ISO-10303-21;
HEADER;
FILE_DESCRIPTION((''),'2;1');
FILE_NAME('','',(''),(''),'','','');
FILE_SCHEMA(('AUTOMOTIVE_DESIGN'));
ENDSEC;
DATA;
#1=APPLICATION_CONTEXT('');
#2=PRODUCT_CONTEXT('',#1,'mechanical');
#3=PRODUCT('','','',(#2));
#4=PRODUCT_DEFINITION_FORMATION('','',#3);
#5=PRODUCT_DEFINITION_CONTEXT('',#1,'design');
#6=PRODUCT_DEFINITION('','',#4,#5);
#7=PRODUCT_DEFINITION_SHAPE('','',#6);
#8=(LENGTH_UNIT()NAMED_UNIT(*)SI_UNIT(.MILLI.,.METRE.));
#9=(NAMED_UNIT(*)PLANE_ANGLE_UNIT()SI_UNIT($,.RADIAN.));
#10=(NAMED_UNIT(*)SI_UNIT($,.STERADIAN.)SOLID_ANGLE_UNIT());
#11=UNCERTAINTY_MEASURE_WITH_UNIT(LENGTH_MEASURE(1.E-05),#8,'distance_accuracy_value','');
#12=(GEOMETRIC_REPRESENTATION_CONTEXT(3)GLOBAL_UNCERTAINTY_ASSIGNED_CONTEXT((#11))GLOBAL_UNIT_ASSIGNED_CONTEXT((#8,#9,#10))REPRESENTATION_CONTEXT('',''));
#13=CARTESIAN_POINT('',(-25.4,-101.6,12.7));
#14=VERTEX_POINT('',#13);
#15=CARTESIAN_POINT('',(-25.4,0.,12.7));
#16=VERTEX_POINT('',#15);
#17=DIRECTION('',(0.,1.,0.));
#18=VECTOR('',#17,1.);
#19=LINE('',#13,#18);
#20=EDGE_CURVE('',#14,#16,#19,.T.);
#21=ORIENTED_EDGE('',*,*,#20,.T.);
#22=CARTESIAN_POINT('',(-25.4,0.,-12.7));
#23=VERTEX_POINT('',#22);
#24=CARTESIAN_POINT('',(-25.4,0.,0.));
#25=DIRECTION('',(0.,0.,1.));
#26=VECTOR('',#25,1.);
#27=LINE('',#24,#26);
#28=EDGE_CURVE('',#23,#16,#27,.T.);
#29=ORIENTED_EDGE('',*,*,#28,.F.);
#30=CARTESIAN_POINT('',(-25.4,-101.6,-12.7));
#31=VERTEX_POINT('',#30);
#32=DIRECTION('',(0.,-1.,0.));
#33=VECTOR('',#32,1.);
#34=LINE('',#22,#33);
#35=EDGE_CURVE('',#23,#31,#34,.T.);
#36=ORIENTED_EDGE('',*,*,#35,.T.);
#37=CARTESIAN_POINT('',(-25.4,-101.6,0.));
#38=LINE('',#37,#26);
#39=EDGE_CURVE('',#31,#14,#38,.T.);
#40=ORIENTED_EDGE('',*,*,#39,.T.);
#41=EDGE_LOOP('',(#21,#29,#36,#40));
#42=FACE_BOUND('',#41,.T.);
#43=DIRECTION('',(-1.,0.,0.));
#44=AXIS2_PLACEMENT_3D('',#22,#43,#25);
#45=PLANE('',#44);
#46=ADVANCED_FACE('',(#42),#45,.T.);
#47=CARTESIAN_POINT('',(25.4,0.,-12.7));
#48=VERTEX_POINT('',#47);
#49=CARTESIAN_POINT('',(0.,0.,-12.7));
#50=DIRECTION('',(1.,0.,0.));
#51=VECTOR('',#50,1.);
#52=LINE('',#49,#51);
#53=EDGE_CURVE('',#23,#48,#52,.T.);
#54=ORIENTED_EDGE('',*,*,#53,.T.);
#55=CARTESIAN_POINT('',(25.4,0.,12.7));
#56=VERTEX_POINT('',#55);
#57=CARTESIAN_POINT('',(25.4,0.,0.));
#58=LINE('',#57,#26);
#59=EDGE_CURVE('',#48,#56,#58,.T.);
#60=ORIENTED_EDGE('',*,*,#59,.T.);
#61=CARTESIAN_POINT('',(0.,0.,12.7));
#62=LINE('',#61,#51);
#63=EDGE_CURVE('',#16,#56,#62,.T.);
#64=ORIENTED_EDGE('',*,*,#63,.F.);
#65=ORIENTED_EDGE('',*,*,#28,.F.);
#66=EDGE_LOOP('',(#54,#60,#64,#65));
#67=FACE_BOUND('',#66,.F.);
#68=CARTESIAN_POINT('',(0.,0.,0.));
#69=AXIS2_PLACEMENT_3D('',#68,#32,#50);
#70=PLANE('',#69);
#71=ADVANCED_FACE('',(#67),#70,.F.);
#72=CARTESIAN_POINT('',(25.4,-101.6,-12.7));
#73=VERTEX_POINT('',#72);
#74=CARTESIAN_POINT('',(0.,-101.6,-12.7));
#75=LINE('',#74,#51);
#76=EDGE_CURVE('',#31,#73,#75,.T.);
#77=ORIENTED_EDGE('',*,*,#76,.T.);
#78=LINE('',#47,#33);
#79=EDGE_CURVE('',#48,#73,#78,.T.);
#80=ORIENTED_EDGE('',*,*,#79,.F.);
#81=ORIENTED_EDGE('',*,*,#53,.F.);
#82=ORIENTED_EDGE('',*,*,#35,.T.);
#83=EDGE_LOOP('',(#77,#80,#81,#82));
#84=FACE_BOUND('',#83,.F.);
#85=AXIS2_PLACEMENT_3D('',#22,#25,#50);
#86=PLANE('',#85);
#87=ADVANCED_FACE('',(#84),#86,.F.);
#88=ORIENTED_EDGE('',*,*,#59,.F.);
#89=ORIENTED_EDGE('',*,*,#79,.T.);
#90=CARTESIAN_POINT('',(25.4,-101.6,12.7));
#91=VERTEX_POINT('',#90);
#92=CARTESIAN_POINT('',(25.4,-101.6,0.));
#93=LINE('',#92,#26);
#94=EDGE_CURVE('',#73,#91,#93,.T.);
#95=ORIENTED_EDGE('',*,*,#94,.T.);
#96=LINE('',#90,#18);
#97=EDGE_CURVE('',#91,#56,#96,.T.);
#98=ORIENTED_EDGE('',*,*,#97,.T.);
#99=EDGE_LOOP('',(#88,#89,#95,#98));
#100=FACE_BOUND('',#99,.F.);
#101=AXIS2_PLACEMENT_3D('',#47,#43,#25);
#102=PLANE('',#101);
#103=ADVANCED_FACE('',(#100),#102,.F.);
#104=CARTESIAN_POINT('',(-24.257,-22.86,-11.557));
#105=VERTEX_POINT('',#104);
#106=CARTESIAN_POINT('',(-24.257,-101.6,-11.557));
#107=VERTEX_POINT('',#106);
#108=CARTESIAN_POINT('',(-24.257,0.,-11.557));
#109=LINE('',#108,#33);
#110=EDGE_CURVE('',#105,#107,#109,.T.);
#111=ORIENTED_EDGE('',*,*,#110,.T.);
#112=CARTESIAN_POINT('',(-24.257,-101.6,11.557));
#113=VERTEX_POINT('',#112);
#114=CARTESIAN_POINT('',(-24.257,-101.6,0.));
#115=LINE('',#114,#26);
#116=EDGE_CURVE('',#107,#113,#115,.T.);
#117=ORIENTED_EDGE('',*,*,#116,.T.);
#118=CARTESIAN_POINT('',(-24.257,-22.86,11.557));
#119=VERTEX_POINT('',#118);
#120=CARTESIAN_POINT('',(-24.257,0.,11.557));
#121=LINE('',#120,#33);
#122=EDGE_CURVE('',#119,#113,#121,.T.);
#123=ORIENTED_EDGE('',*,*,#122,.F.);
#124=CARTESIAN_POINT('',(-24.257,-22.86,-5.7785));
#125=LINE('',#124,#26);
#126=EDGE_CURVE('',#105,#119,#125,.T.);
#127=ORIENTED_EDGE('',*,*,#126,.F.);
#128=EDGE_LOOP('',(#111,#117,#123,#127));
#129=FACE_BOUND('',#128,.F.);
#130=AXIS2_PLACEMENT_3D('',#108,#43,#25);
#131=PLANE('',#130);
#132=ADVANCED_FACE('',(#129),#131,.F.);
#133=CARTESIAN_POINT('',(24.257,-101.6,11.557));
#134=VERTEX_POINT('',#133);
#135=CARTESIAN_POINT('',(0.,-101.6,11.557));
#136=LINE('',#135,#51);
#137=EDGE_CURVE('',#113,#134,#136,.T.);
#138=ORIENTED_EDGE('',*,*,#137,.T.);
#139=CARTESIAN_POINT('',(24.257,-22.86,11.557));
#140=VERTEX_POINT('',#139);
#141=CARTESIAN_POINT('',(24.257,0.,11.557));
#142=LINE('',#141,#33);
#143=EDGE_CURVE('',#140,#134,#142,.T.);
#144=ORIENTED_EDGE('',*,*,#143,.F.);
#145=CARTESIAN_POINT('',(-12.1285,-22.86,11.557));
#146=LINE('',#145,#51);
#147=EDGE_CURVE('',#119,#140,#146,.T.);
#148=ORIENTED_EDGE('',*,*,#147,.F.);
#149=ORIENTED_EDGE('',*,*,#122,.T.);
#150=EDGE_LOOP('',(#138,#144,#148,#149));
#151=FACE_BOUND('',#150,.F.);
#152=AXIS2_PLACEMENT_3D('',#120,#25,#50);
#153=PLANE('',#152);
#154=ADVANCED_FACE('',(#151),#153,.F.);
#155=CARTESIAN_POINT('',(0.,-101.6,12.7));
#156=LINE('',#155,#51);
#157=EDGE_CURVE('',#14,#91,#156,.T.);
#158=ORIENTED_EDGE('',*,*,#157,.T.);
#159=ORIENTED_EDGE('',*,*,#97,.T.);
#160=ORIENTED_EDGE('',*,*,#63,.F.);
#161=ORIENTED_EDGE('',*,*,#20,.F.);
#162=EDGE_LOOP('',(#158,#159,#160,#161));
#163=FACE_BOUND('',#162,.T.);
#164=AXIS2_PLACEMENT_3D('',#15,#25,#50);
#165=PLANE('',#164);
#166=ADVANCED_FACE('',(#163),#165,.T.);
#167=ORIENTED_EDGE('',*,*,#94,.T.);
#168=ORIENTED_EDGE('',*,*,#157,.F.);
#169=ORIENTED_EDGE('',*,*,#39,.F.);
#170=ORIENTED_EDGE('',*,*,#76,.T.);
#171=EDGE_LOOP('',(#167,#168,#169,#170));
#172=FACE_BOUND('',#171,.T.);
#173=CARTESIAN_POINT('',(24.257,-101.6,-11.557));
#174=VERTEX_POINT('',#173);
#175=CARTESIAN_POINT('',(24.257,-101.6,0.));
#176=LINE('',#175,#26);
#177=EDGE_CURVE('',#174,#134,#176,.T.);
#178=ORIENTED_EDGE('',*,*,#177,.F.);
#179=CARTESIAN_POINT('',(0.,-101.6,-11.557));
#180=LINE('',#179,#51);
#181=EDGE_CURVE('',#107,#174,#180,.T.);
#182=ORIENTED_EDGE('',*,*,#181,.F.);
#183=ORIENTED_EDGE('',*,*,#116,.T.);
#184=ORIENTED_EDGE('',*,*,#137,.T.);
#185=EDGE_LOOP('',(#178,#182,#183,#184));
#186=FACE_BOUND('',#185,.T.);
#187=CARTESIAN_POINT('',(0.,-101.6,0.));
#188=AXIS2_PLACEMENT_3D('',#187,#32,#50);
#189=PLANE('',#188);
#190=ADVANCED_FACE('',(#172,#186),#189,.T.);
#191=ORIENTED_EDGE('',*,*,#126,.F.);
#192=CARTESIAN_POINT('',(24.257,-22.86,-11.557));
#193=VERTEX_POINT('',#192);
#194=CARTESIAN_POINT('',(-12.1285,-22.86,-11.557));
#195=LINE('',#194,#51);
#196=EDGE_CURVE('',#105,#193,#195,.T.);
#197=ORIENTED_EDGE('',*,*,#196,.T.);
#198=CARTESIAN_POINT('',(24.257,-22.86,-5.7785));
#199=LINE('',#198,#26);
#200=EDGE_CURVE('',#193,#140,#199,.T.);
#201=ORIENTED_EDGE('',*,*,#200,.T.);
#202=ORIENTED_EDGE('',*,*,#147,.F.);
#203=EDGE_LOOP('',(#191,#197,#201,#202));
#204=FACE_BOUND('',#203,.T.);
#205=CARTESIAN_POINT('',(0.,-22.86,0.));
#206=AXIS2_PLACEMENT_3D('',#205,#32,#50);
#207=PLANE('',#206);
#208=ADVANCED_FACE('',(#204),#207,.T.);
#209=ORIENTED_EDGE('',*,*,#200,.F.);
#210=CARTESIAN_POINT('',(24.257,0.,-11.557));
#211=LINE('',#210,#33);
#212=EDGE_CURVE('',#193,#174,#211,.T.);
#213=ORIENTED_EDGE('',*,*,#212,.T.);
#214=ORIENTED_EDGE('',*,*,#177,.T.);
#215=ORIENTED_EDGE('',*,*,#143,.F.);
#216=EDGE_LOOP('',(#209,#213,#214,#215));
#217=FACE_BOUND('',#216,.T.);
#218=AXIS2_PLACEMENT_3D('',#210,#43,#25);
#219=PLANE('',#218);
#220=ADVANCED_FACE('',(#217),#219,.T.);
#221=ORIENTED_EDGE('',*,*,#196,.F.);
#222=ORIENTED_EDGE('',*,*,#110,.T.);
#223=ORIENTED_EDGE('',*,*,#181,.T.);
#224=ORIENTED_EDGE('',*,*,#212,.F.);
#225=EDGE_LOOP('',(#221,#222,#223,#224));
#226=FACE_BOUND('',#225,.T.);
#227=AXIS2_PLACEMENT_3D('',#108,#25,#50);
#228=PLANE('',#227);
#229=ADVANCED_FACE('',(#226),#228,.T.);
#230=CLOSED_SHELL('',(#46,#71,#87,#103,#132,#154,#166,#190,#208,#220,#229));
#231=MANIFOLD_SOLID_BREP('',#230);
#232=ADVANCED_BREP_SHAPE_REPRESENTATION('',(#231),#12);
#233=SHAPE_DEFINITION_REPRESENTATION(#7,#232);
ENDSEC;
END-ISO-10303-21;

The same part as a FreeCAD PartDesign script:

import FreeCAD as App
import Part
import Sketcher
from FreeCAD import Vector
Q = App.Units.Quantity

doc = App.newDocument("Part")
body = doc.addObject("PartDesign::Body", "Body")

# Sketch on XZ plane
sketch1 = body.newObject("Sketcher::SketchObject", "Sketch")
sketch1.AttachmentSupport = (doc.getObject("XZ_Plane"), [""])
sketch1.MapMode = "FlatFace"
sketch1.addGeometry(Part.LineSegment(Vector(-25.4, 12.7, 0), Vector(-25.4, -12.7, 0)), False)
sketch1.addGeometry(Part.LineSegment(Vector(-25.4, -12.7, 0), Vector(25.4, -12.7, 0)), False)
sketch1.addGeometry(Part.LineSegment(Vector(25.4, -12.7, 0), Vector(25.4, 12.7, 0)), False)
sketch1.addGeometry(Part.LineSegment(Vector(25.4, 12.7, 0), Vector(-25.4, 12.7, 0)), False)
sketch1.addGeometry(Part.LineSegment(Vector(24.257, -11.557, 0), Vector(-24.257, -11.557, 0)), False)
sketch1.addGeometry(Part.LineSegment(Vector(-24.257, -11.557, 0), Vector(-24.257, 11.557, 0)), False)
sketch1.addGeometry(Part.LineSegment(Vector(-24.257, 11.557, 0), Vector(24.257, 11.557, 0)), False)
sketch1.addGeometry(Part.LineSegment(Vector(24.257, 11.557, 0), Vector(24.257, -11.557, 0)), False)
sketch1.addConstraint(Sketcher.Constraint("Coincident", 0, 2, 1, 1))
sketch1.addConstraint(Sketcher.Constraint("Coincident", 1, 2, 2, 1))
sketch1.addConstraint(Sketcher.Constraint("Coincident", 2, 2, 3, 1))
sketch1.addConstraint(Sketcher.Constraint("Coincident", 3, 2, 0, 1))
sketch1.addConstraint(Sketcher.Constraint("Coincident", 4, 2, 5, 1))
sketch1.addConstraint(Sketcher.Constraint("Coincident", 5, 2, 6, 1))
sketch1.addConstraint(Sketcher.Constraint("Coincident", 6, 2, 7, 1))
sketch1.addConstraint(Sketcher.Constraint("Coincident", 7, 2, 4, 1))
sketch1.addConstraint(Sketcher.Constraint("Vertical", 0))
sketch1.addConstraint(Sketcher.Constraint("Horizontal", 1))
sketch1.addConstraint(Sketcher.Constraint("Vertical", 2))
sketch1.addConstraint(Sketcher.Constraint("Horizontal", 3))
sketch1.addConstraint(Sketcher.Constraint("Horizontal", 4))
sketch1.addConstraint(Sketcher.Constraint("Vertical", 5))
sketch1.addConstraint(Sketcher.Constraint("Horizontal", 6))
sketch1.addConstraint(Sketcher.Constraint("Vertical", 7))
sketch1.addConstraint(Sketcher.Constraint("Symmetric", 0, 2, 2, 2, -1, 1))
sketch1.addConstraint(Sketcher.Constraint("Symmetric", 4, 2, 6, 2, -1, 1))
sketch1.addConstraint(Sketcher.Constraint("DistanceX", 1, 1, 1, 2, Q("2 in")))
sketch1.addConstraint(Sketcher.Constraint("DistanceY", 0, 2, 0, 1, Q("1 in")))
sketch1.addConstraint(Sketcher.Constraint("DistanceX", 4, 2, 4, 1, Q("1.91 in")))
sketch1.addConstraint(Sketcher.Constraint("DistanceY", 5, 1, 5, 2, Q("0.91 in")))
pad1 = body.newObject("PartDesign::Pad", "Pad")
pad1.Profile = sketch1
pad1.Length = Q("4 in")

# Sketch on XZ plane
sketch2 = body.newObject("Sketcher::SketchObject", "Sketch001")
sketch2.AttachmentSupport = (doc.getObject("XZ_Plane"), [""])
sketch2.MapMode = "FlatFace"
sketch2.addGeometry(Part.LineSegment(Vector(-25.4, 12.7, 0), Vector(-25.4, -12.7, 0)), False)
sketch2.addGeometry(Part.LineSegment(Vector(-25.4, -12.7, 0), Vector(25.4, -12.7, 0)), False)
sketch2.addGeometry(Part.LineSegment(Vector(25.4, -12.7, 0), Vector(25.4, 12.7, 0)), False)
sketch2.addGeometry(Part.LineSegment(Vector(25.4, 12.7, 0), Vector(-25.4, 12.7, 0)), False)
sketch2.addConstraint(Sketcher.Constraint("Coincident", 0, 2, 1, 1))
sketch2.addConstraint(Sketcher.Constraint("Coincident", 1, 2, 2, 1))
sketch2.addConstraint(Sketcher.Constraint("Coincident", 2, 2, 3, 1))
sketch2.addConstraint(Sketcher.Constraint("Coincident", 3, 2, 0, 1))
sketch2.addConstraint(Sketcher.Constraint("Vertical", 0))
sketch2.addConstraint(Sketcher.Constraint("Horizontal", 1))
sketch2.addConstraint(Sketcher.Constraint("Vertical", 2))
sketch2.addConstraint(Sketcher.Constraint("Horizontal", 3))
sketch2.addConstraint(Sketcher.Constraint("Symmetric", 0, 2, 2, 2, -1, 1))
sketch2.addConstraint(Sketcher.Constraint("DistanceX", 1, 1, 1, 2, Q("2 in")))
sketch2.addConstraint(Sketcher.Constraint("DistanceY", 0, 2, 0, 1, Q("1 in")))
pad2 = body.newObject("PartDesign::Pad", "Pad001")
pad2.Profile = sketch2
pad2.Length = Q("0.9 in")

doc.recompute()
